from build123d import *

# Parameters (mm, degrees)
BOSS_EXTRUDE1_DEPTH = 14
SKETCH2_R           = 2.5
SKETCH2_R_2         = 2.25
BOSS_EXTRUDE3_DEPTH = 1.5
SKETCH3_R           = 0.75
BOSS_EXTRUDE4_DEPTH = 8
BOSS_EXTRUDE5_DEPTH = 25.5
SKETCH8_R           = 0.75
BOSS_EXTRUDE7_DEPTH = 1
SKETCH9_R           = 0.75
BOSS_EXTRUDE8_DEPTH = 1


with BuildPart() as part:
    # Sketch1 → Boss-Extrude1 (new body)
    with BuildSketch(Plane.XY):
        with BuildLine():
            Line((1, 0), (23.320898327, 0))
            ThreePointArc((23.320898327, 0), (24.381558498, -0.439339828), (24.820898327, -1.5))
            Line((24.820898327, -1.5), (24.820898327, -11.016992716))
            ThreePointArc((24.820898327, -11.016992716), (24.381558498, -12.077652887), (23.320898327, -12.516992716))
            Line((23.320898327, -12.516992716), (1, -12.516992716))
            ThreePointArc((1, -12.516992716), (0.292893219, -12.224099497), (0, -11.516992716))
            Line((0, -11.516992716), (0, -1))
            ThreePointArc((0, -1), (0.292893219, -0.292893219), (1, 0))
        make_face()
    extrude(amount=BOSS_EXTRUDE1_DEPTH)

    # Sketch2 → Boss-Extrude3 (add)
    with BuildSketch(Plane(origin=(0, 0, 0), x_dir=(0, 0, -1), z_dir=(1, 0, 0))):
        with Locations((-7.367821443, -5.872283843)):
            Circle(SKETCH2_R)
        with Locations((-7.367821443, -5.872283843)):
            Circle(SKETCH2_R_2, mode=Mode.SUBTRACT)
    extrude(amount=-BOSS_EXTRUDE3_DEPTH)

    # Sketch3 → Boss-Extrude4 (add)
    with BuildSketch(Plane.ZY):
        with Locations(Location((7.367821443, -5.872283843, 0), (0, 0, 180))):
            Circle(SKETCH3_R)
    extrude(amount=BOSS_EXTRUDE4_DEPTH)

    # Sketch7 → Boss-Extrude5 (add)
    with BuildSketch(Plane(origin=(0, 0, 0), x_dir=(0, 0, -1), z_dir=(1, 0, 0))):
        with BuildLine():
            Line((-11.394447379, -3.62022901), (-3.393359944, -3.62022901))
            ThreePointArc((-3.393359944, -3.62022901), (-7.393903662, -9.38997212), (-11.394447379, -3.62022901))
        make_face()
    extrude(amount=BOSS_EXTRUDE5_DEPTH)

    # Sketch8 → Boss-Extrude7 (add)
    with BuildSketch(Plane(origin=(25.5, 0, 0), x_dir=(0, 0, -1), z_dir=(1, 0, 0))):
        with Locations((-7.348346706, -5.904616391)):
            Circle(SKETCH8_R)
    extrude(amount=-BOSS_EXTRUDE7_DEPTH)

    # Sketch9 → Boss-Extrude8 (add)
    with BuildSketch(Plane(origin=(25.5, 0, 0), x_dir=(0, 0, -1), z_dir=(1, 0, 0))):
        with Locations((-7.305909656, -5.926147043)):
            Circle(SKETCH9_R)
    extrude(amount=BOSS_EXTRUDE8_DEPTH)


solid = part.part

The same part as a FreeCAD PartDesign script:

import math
import FreeCAD as App
import Part
import Sketcher
from FreeCAD import Vector

doc = App.newDocument("Part")
body = doc.addObject("PartDesign::Body", "Body")

sketch1 = body.newObject("Sketcher::SketchObject", "Sketch")
sketch1.AttachmentSupport = (doc.getObject("XY_Plane"), [""])
sketch1.MapMode = "FlatFace"
sketch1.addGeometry([
    Part.LineSegment(Vector(23.3, 0, 0), Vector(1, 0, 0)),
    Part.ArcOfCircle(Part.Circle(Vector(1, -1, 0), Vector(0, 0, 1), 1), math.radians(90), math.radians(180)),
    Part.LineSegment(Vector(0, -1, 0), Vector(0, -11.5, 0)),
    Part.ArcOfCircle(Part.Circle(Vector(1, -11.5, 0), Vector(0, 0, 1), 1), math.radians(-180), math.radians(-90)),
    Part.LineSegment(Vector(1, -12.5, 0), Vector(23.3, -12.5, 0)),
    Part.ArcOfCircle(Part.Circle(Vector(23.3, -11, 0), Vector(0, 0, 1), 1.5), math.radians(-90), math.radians(0)),
    Part.LineSegment(Vector(24.8, -11, 0), Vector(24.8, -1.5, 0)),
    Part.ArcOfCircle(Part.Circle(Vector(23.3, -1.5, 0), Vector(0, 0, 1), 1.5), math.radians(0), math.radians(90)),
], False)
sketch1.addConstraint([
    Sketcher.Constraint("Tangent", 0, 2, 1, 1),
    Sketcher.Constraint("Tangent", 1, 2, 2, 1),
    Sketcher.Constraint("Tangent", 2, 2, 3, 1),
    Sketcher.Constraint("Tangent", 3, 2, 4, 1),
    Sketcher.Constraint("Tangent", 4, 2, 5, 1),
    Sketcher.Constraint("Tangent", 5, 2, 6, 1),
    Sketcher.Constraint("Tangent", 6, 2, 7, 1),
    Sketcher.Constraint("Tangent", 7, 2, 0, 1),
    Sketcher.Constraint("Horizontal", 0),
    Sketcher.Constraint("Vertical", 2),
    Sketcher.Constraint("Horizontal", 4),
    Sketcher.Constraint("Vertical", 6),
    Sketcher.Constraint("Equal", 1, 3),
    Sketcher.Constraint("Equal", 5, 7),
    Sketcher.Constraint("PointOnObject", 0, 2, -1),
    Sketcher.Constraint("PointOnObject", 1, 2, -2),
    Sketcher.Constraint("Radius", 1, 1.0),
    Sketcher.Constraint("Radius", 5, 1.5),
    Sketcher.Constraint("DistanceX", 0, 2, 0, 1, 22.320898),
    Sketcher.Constraint("DistanceY", 2, 2, 2, 1, 10.516993),
])
pad1 = body.newObject("PartDesign::Pad", "Pad")
pad1.Profile = sketch1
pad1.Length = 14

sketch2 = body.newObject("Sketcher::SketchObject", "Sketch001")
sketch2.AttachmentSupport = (doc.getObject("YZ_Plane"), [""])
sketch2.MapMode = "FlatFace"
sketch2.addGeometry([
    Part.Circle(Vector(-5.9, 7.4, 0), Vector(0, 0, 1), 2.5),
    Part.Circle(Vector(-5.9, 7.4, 0), Vector(0, 0, 1), 2.2),
], False)
sketch2.addConstraint([
    Sketcher.Constraint("Coincident", 1, 3, 0, 3),
    Sketcher.Constraint("Diameter", 0, 5.0),
    Sketcher.Constraint("Diameter", 1, 4.5),
    Sketcher.Constraint("DistanceY", -1, 1, 0, 3, 7.367821),
    Sketcher.Constraint("DistanceX", 0, 3, -1, 1, 5.872284),
])
pad2 = body.newObject("PartDesign::Pad", "Pad001")
pad2.Profile = sketch2
pad2.Length = 1.5
pad2.Reversed = True

sketch3 = body.newObject("Sketcher::SketchObject", "Sketch002")
sketch3.AttachmentSupport = (doc.getObject("YZ_Plane"), [""])
sketch3.MapMode = "FlatFace"
sketch3.addGeometry(Part.Circle(Vector(-5.9, 7.4, 0), Vector(0, 0, 1), 0.8), False)
sketch3.addConstraint([
    Sketcher.Constraint("Diameter", 0, 1.5),
    Sketcher.Constraint("DistanceY", -1, 1, 0, 3, 7.367821),
    Sketcher.Constraint("DistanceX", 0, 3, -1, 1, 5.872284),
])
pad3 = body.newObject("PartDesign::Pad", "Pad002")
pad3.Profile = sketch3
pad3.Length = 8
pad3.Reversed = True

sketch4 = body.newObject("Sketcher::SketchObject", "Sketch003")
sketch4.AttachmentSupport = (doc.getObject("YZ_Plane"), [""])
sketch4.MapMode = "FlatFace"
sketch4.addGeometry([
    Part.LineSegment(Vector(-3.6, 3.4, 0), Vector(-3.6, 11.4, 0)),
    Part.ArcOfCircle(Part.Circle(Vector(-5.1, 7.4, 0), Vector(0, 0, 1), 4.3), math.radians(69), math.radians(291)),
], False)
sketch4.addConstraint([
    Sketcher.Constraint("Coincident", 0, 1, 1, 2),
    Sketcher.Constraint("Coincident", 1, 1, 0, 2),
    Sketcher.Constraint("Vertical", 0),
    Sketcher.Constraint("Radius", 1, 4.271792),
    Sketcher.Constraint("DistanceY", 0, 1, 0, 2, 8.001087),
    Sketcher.Constraint("DistanceX", 1, 3, -1, 1, 5.11818),
    Sketcher.Constraint("DistanceY", -1, 1, 0, 1, 3.39336),
])
pad4 = body.newObject("PartDesign::Pad", "Pad003")
pad4.Profile = sketch4
pad4.Length = 25.5

sketch5 = body.newObject("Sketcher::SketchObject", "Sketch004")
sketch5.AttachmentSupport = (doc.getObject("YZ_Plane"), [""])
sketch5.MapMode = "FlatFace"
sketch5.AttachmentOffset = App.Placement(Vector(0, 0, 25.5), App.Rotation())
sketch5.addGeometry(Part.Circle(Vector(-5.9, 7.3, 0), Vector(0, 0, 1), 0.8), False)
sketch5.addConstraint([
    Sketcher.Constraint("Diameter", 0, 1.5),
    Sketcher.Constraint("DistanceX", 0, 3, -1, 1, 5.904616),
    Sketcher.Constraint("DistanceY", -1, 1, 0, 3, 7.348347),
])
pad5 = body.newObject("PartDesign::Pad", "Pad004")
pad5.Profile = sketch5
pad5.Length = 1
pad5.Reversed = True

sketch6 = body.newObject("Sketcher::SketchObject", "Sketch005")
sketch6.AttachmentSupport = (doc.getObject("YZ_Plane"), [""])
sketch6.MapMode = "FlatFace"
sketch6.AttachmentOffset = App.Placement(Vector(0, 0, 25.5), App.Rotation())
sketch6.addGeometry(Part.Circle(Vector(-5.9, 7.3, 0), Vector(0, 0, 1), 0.8), False)
sketch6.addConstraint([
    Sketcher.Constraint("Diameter", 0, 1.5),
    Sketcher.Constraint("DistanceY", -1, 1, 0, 3, 7.30591),
    Sketcher.Constraint("DistanceX", 0, 3, -1, 1, 5.926147),
])
pad6 = body.newObject("PartDesign::Pad", "Pad005")
pad6.Profile = sketch6
pad6.Length = 1

doc.recompute()
